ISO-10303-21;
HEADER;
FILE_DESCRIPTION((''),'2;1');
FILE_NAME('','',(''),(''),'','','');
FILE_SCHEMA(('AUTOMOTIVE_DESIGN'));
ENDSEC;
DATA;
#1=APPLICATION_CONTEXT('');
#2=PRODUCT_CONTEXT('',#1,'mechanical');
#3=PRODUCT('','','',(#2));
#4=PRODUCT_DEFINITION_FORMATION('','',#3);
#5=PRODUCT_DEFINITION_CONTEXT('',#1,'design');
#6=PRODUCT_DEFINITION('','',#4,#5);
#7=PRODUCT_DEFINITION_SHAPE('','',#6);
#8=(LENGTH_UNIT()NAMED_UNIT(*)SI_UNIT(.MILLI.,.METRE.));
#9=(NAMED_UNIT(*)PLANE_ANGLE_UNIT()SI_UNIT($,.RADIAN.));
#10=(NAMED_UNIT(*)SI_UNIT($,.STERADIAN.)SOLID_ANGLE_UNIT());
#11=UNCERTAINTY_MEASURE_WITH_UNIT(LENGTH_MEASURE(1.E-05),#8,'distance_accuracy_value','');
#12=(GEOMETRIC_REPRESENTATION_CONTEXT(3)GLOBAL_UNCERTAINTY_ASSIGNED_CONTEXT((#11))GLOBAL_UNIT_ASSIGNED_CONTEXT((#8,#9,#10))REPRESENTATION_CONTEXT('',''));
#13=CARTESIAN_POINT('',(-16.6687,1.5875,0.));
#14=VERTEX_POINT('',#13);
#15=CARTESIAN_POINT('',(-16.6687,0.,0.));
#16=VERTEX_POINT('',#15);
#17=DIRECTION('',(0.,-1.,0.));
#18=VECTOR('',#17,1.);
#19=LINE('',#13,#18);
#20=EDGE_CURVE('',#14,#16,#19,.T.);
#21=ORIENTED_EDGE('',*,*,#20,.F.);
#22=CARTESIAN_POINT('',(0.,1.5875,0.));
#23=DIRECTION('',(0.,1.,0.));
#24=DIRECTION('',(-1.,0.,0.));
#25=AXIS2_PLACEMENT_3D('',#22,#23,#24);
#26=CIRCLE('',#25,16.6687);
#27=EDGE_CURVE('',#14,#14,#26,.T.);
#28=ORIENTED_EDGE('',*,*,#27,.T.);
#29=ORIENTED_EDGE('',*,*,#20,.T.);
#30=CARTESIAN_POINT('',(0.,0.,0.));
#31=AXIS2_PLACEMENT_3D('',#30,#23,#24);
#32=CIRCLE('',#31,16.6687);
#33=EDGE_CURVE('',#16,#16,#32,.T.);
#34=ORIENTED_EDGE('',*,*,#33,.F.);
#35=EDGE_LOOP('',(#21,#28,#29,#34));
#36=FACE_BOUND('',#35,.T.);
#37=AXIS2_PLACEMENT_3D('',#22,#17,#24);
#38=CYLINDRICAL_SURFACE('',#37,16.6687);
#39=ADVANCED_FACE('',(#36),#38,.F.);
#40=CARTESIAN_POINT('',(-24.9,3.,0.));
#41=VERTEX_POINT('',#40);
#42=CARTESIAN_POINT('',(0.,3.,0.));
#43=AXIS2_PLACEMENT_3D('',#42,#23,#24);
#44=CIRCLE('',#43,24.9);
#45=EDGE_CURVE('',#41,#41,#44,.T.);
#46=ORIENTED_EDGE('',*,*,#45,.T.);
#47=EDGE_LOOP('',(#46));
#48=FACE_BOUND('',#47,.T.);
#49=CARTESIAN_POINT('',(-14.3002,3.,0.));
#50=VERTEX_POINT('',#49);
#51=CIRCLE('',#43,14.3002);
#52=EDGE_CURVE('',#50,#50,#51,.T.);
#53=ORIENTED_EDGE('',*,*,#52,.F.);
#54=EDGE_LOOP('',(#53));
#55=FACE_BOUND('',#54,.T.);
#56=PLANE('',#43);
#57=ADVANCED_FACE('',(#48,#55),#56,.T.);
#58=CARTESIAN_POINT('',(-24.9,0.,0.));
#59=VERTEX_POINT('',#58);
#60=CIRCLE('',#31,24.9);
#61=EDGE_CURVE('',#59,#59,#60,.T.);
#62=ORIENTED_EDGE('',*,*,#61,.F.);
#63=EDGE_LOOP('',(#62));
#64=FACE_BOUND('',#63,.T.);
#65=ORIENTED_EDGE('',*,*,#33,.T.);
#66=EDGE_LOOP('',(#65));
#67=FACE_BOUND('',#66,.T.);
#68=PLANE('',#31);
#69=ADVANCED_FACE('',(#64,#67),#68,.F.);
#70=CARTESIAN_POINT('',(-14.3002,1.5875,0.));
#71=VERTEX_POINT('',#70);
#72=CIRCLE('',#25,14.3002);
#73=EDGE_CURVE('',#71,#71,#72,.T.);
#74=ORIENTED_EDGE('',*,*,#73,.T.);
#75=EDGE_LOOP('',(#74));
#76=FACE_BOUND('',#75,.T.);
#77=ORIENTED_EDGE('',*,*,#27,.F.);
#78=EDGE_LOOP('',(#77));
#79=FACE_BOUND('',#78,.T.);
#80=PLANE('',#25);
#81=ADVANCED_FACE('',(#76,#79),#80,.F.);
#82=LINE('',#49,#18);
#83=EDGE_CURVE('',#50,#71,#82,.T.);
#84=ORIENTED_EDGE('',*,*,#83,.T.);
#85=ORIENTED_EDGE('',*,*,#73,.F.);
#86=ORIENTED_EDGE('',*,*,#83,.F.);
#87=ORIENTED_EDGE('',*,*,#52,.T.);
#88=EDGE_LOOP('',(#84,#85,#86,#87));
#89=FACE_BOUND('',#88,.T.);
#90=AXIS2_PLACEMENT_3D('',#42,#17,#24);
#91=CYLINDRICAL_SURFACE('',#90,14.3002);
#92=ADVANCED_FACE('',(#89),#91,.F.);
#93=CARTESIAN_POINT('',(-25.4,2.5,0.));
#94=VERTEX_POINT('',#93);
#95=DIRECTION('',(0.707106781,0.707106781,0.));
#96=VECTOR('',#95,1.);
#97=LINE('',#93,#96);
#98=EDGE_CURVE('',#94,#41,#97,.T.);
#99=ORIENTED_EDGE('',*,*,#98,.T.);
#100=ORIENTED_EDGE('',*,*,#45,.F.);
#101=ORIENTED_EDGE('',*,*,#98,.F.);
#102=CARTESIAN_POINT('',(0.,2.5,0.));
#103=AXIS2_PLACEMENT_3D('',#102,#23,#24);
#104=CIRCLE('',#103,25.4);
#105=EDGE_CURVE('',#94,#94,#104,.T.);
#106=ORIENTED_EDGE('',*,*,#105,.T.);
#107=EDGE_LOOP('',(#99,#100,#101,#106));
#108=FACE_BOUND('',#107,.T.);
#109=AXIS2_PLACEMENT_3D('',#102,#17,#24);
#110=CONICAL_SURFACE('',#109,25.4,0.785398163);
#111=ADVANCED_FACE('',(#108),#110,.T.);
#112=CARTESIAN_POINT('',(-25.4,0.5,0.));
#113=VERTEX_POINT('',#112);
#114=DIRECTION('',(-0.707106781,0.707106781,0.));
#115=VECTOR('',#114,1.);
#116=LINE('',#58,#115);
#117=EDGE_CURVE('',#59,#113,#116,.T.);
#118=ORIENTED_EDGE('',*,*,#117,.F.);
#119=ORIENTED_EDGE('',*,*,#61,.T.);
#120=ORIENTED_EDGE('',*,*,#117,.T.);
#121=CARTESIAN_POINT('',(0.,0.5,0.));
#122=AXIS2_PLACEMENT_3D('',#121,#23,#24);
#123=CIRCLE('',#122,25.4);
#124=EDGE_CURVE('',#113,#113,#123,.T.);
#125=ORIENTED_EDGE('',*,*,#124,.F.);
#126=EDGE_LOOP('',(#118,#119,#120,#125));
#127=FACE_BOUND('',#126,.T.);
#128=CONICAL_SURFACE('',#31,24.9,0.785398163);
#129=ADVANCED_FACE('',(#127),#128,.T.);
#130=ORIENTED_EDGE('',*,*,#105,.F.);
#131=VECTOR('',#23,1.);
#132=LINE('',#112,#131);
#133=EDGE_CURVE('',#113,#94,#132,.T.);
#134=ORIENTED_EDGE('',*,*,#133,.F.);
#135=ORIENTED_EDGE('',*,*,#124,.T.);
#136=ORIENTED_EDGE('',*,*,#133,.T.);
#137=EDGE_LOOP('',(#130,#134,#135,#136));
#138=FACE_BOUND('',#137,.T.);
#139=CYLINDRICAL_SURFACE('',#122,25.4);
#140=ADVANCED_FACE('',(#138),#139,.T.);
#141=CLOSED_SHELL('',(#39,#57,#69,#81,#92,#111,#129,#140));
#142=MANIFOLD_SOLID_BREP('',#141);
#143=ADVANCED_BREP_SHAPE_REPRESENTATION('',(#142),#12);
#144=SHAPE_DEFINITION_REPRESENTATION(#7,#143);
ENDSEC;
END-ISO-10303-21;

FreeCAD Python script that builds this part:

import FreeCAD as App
import Part
import Sketcher

V = App.Vector


def add_polygon(sketch, points):
    """Adds a closed chain of lines whose ends are joined by coincident constraints."""
    first, n = sketch.GeometryCount, len(points)
    for a, b in zip(points, points[1:] + points[:1]):
        sketch.addGeometry(Part.LineSegment(App.Vector(*a, 0), App.Vector(*b, 0)), False)
    for i in range(n):
        sketch.addConstraint(Sketcher.Constraint("Coincident", first + i, 2, first + (i + 1) % n, 1))

doc = App.newDocument("Part")
body = doc.addObject("PartDesign::Body", "Body")

# Sketch on XY plane
sketch1 = body.newObject("Sketcher::SketchObject", "Sketch")
sketch1.AttachmentSupport = (doc.getObject("XY_Plane"), [""])
sketch1.MapMode = "FlatFace"
add_polygon(sketch1, [(-25.4, 0.5), (-24.9, 0), (-16.7, 0), (-16.7, 1.6), (-14.3, 1.6), (-14.3, 3), (-24.9, 3), (-25.4, 2.5)])  # lines 0-7
sketch1.addConstraint([
    Sketcher.Constraint("Horizontal", 1),
    Sketcher.Constraint("Vertical", 2),
    Sketcher.Constraint("Horizontal", 3),
    Sketcher.Constraint("Vertical", 4),
    Sketcher.Constraint("Horizontal", 5),
    Sketcher.Constraint("Vertical", 7),
    Sketcher.Constraint("PointOnObject", 0, 2, -1),
    Sketcher.Constraint("Perpendicular", 0, 6),
    Sketcher.Constraint("Vertical", 0, 2, 5, 2),
    Sketcher.Constraint("Equal", 0, 6),
    Sketcher.Constraint("DistanceY", -1, 1, 4, 2, 3.0),
    Sketcher.Constraint("DistanceY", -1, 1, 7, 2, 0.5),
    Sketcher.Constraint("DistanceX", 3, 1, 3, 2, 2.3685),
    Sketcher.Constraint("DistanceY", 2, 1, 2, 2, 1.5875),
    Sketcher.Constraint("DistanceX", 0, 2, -1, 1, 24.9),
    Sketcher.Constraint("DistanceX", 1, 1, 1, 2, 8.2313),
])
revolution = body.newObject("PartDesign::Revolution", "Revolution")
revolution.Profile = sketch1
revolution.ReferenceAxis = (sketch1, ["V_Axis"])
revolution.Angle = 360

doc.recompute()
